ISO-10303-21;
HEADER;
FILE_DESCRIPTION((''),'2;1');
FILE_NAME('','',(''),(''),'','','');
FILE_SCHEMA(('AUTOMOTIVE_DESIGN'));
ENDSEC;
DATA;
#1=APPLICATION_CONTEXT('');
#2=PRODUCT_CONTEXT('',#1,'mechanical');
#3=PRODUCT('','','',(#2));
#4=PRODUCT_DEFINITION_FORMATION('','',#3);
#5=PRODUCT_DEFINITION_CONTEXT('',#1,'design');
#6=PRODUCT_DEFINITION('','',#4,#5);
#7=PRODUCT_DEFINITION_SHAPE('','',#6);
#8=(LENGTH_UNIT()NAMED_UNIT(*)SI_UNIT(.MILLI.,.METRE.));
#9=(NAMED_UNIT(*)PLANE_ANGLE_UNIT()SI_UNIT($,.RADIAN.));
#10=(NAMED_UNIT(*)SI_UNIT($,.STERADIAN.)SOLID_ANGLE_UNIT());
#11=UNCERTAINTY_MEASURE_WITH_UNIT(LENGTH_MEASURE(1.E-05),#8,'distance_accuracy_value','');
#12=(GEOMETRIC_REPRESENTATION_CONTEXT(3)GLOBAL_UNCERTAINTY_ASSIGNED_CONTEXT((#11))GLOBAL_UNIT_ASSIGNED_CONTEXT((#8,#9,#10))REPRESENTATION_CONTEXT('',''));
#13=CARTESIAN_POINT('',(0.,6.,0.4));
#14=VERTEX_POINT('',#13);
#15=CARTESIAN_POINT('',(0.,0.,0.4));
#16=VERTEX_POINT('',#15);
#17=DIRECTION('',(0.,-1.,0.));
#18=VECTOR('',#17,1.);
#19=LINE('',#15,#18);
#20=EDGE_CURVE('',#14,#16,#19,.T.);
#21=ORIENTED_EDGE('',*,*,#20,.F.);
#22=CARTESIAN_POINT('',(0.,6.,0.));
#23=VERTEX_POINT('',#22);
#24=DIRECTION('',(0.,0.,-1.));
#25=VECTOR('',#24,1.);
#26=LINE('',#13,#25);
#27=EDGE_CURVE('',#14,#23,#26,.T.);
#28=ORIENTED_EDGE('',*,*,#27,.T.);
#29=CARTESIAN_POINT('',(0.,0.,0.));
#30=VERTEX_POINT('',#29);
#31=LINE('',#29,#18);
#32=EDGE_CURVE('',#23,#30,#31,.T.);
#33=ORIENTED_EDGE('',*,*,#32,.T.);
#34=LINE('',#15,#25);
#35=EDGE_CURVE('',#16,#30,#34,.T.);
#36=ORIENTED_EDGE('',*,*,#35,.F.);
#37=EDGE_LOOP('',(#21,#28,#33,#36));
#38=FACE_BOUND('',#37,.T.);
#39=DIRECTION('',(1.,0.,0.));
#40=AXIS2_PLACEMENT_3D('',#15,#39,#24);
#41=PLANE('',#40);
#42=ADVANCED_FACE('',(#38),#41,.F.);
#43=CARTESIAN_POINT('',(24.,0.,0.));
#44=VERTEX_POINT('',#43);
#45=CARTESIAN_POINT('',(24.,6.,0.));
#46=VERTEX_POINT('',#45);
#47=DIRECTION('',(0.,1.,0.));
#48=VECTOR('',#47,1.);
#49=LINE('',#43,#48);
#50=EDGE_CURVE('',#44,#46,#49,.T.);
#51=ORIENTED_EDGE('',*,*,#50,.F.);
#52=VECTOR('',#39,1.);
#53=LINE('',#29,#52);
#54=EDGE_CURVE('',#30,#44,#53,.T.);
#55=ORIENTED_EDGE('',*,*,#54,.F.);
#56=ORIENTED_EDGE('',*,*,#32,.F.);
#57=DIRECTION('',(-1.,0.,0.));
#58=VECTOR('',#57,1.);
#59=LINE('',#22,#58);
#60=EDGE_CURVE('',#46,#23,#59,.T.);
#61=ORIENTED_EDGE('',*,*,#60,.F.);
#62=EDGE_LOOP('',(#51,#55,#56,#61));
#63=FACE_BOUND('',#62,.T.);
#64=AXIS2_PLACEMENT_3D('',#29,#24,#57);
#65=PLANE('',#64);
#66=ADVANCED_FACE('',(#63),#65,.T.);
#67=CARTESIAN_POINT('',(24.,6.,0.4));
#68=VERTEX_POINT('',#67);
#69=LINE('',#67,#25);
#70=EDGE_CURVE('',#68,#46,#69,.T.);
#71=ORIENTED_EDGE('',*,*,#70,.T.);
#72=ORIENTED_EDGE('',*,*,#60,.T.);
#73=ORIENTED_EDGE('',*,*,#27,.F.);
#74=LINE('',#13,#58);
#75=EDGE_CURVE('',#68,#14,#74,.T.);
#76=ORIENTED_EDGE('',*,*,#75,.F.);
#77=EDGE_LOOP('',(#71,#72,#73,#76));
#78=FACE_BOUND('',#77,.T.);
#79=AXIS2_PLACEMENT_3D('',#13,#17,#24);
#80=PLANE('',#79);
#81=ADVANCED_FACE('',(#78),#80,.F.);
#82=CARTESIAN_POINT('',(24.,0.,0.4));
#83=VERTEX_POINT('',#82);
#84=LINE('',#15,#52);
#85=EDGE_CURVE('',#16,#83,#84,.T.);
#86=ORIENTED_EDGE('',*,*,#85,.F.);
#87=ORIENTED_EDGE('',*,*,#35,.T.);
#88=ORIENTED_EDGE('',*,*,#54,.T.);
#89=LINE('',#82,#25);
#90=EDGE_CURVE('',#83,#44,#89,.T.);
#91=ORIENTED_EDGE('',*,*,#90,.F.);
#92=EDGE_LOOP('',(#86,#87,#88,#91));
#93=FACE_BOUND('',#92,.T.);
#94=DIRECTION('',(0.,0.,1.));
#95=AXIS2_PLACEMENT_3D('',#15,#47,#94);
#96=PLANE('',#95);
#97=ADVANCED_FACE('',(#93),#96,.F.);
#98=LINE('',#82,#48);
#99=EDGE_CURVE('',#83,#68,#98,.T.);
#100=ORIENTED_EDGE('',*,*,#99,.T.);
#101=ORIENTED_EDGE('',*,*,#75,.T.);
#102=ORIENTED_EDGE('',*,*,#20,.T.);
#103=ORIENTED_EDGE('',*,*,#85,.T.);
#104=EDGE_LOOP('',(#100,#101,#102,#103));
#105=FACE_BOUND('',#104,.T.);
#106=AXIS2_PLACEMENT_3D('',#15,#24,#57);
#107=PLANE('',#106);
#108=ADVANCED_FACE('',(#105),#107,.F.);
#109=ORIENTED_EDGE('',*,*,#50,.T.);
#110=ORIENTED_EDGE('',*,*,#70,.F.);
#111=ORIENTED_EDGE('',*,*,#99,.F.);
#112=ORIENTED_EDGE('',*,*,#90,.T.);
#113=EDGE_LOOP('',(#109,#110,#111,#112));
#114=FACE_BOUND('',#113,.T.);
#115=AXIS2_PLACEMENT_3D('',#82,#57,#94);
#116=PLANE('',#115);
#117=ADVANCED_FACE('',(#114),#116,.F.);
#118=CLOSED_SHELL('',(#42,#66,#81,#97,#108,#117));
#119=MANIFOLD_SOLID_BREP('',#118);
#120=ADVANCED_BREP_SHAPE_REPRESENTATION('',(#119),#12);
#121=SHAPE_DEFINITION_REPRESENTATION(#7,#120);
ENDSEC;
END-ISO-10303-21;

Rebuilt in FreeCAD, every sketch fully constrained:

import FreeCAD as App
import Part
import Sketcher

V = App.Vector
Q = App.Units.Quantity

doc = App.newDocument("Part")
body = doc.addObject("PartDesign::Body", "Body")

# Sketch on XY plane
sketch1 = body.newObject("Sketcher::SketchObject", "Sketch")
sketch1.AttachmentSupport = (doc.getObject("XY_Plane"), [""])
sketch1.MapMode = "FlatFace"
sketch1.addGeometry(Part.LineSegment(V(0, 6, 0), V(0, 0, 0)), False)
sketch1.addGeometry(Part.LineSegment(V(0, 0, 0), V(24, 0, 0)), False)
sketch1.addGeometry(Part.LineSegment(V(24, 0, 0), V(24, 6, 0)), False)
sketch1.addGeometry(Part.LineSegment(V(24, 6, 0), V(0, 6, 0)), False)
sketch1.addConstraint(Sketcher.Constraint("Coincident", 0, 2, 1, 1))
sketch1.addConstraint(Sketcher.Constraint("Coincident", 1, 2, 2, 1))
sketch1.addConstraint(Sketcher.Constraint("Coincident", 2, 2, 3, 1))
sketch1.addConstraint(Sketcher.Constraint("Coincident", 3, 2, 0, 1))
sketch1.addConstraint(Sketcher.Constraint("Vertical", 0))
sketch1.addConstraint(Sketcher.Constraint("Horizontal", 1))
sketch1.addConstraint(Sketcher.Constraint("Vertical", 2))
sketch1.addConstraint(Sketcher.Constraint("Horizontal", 3))
sketch1.addConstraint(Sketcher.Constraint("Coincident", 0, 2, -1, 1))
sketch1.addConstraint(Sketcher.Constraint("DistanceX", 1, 1, 1, 2, Q("24 mm")))
sketch1.addConstraint(Sketcher.Constraint("DistanceY", 0, 2, 0, 1, Q("6 mm")))
pad1 = body.newObject("PartDesign::Pad", "Pad")
pad1.Profile = sketch1
pad1.Length = 0.4

doc.recompute()
